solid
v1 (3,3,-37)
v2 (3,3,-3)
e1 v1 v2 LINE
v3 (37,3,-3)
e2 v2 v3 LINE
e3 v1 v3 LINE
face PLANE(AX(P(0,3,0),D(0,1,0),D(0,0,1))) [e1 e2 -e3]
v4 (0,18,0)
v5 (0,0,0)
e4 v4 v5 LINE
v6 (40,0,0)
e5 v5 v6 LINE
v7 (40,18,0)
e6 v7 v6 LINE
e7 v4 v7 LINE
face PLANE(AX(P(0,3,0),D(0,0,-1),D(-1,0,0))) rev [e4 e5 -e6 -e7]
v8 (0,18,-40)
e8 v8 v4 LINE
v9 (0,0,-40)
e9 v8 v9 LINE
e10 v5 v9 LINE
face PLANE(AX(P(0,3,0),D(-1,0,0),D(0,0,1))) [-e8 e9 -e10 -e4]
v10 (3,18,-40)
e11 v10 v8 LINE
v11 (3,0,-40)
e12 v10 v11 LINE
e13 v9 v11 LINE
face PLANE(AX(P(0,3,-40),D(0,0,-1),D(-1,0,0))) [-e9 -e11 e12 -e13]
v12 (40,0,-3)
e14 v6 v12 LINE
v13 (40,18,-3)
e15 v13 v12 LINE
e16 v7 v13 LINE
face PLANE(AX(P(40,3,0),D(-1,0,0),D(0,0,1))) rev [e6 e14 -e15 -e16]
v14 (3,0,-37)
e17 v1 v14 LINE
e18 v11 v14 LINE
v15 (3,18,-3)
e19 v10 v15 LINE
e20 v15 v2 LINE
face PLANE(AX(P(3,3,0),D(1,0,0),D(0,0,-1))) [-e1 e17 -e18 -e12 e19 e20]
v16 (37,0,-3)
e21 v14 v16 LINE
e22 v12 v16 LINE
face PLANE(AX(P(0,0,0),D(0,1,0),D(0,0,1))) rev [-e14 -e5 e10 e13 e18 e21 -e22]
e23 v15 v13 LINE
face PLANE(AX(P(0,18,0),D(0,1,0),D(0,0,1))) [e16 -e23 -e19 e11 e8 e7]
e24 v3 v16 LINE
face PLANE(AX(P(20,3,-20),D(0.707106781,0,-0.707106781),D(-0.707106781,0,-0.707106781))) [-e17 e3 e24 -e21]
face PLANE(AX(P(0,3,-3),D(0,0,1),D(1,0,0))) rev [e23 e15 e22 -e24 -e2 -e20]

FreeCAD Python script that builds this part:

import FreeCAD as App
import Part
import Sketcher
Q = App.Units.Quantity

doc = App.newDocument("Part")
body = doc.addObject("PartDesign::Body", "Body")

sketch1 = body.newObject("Sketcher::SketchObject", "Sketch")
sketch1.AttachmentSupport = (doc.getObject("XZ_Plane"), [""])
sketch1.MapMode = "FlatFace"
sketch1.addGeometry(Part.LineSegment(App.Vector(3, -40, 0), App.Vector(0, -40, 0)), False)
sketch1.addGeometry(Part.LineSegment(App.Vector(0, -40, 0), App.Vector(0, 0, 0)), False)
sketch1.addGeometry(Part.LineSegment(App.Vector(0, 0, 0), App.Vector(40, 0, 0)), False)
sketch1.addGeometry(Part.LineSegment(App.Vector(40, 0, 0), App.Vector(40, -3, 0)), False)
sketch1.addGeometry(Part.LineSegment(App.Vector(40, -3, 0), App.Vector(37, -3, 0)), False)
sketch1.addGeometry(Part.LineSegment(App.Vector(37, -3, 0), App.Vector(3, -37, 0)), False)
sketch1.addGeometry(Part.LineSegment(App.Vector(3, -37, 0), App.Vector(3, -40, 0)), False)
sketch1.addConstraint(Sketcher.Constraint("Coincident", 0, 2, 1, 1))
sketch1.addConstraint(Sketcher.Constraint("Coincident", 1, 2, 2, 1))
sketch1.addConstraint(Sketcher.Constraint("Coincident", 2, 2, 3, 1))
sketch1.addConstraint(Sketcher.Constraint("Coincident", 3, 2, 4, 1))
sketch1.addConstraint(Sketcher.Constraint("Coincident", 4, 2, 5, 1))
sketch1.addConstraint(Sketcher.Constraint("Coincident", 5, 2, 6, 1))
sketch1.addConstraint(Sketcher.Constraint("Coincident", 6, 2, 0, 1))
sketch1.addConstraint(Sketcher.Constraint("Horizontal", 0))
sketch1.addConstraint(Sketcher.Constraint("Vertical", 1))
sketch1.addConstraint(Sketcher.Constraint("Horizontal", 2))
sketch1.addConstraint(Sketcher.Constraint("Vertical", 3))
sketch1.addConstraint(Sketcher.Constraint("Horizontal", 4))
sketch1.addConstraint(Sketcher.Constraint("Vertical", 6))
sketch1.addConstraint(Sketcher.Constraint("Coincident", 1, 2, -1, 1))
sketch1.addConstraint(Sketcher.Constraint("Equal", 0, 4))
sketch1.addConstraint(Sketcher.Constraint("Equal", 2, 1))
sketch1.addConstraint(Sketcher.Constraint("Equal", 4, 3))
sketch1.addConstraint(Sketcher.Constraint("Equal", 3, 6))
sketch1.addConstraint(Sketcher.Constraint("DistanceX", 0, 2, 0, 1, Q("3 mm")))
sketch1.addConstraint(Sketcher.Constraint("DistanceX", 2, 1, 2, 2, Q("40 mm")))
pad1 = body.newObject("PartDesign::Pad", "Pad")
pad1.Profile = sketch1
pad1.Length = 3
pad1.Reversed = True

sketch2 = body.newObject("Sketcher::SketchObject", "Sketch001")
sketch2.AttachmentSupport = (doc.getObject("XZ_Plane"), [""])
sketch2.MapMode = "FlatFace"
sketch2.AttachmentOffset = App.Placement(App.Vector(0, 0, -3), App.Rotation())
sketch2.addGeometry(Part.LineSegment(App.Vector(3, -3, 0), App.Vector(3, -40, 0)), False)
sketch2.addGeometry(Part.LineSegment(App.Vector(3, -40, 0), App.Vector(0, -40, 0)), False)
sketch2.addGeometry(Part.LineSegment(App.Vector(0, -40, 0), App.Vector(0, 0, 0)), False)
sketch2.addGeometry(Part.LineSegment(App.Vector(0, 0, 0), App.Vector(40, 0, 0)), False)
sketch2.addGeometry(Part.LineSegment(App.Vector(40, 0, 0), App.Vector(40, -3, 0)), False)
sketch2.addGeometry(Part.LineSegment(App.Vector(40, -3, 0), App.Vector(3, -3, 0)), False)
sketch2.addConstraint(Sketcher.Constraint("Coincident", 0, 2, 1, 1))
sketch2.addConstraint(Sketcher.Constraint("Coincident", 1, 2, 2, 1))
sketch2.addConstraint(Sketcher.Constraint("Coincident", 2, 2, 3, 1))
sketch2.addConstraint(Sketcher.Constraint("Coincident", 3, 2, 4, 1))
sketch2.addConstraint(Sketcher.Constraint("Coincident", 4, 2, 5, 1))
sketch2.addConstraint(Sketcher.Constraint("Coincident", 5, 2, 0, 1))
sketch2.addConstraint(Sketcher.Constraint("Vertical", 0))
sketch2.addConstraint(Sketcher.Constraint("Horizontal", 1))
sketch2.addConstraint(Sketcher.Constraint("Vertical", 2))
sketch2.addConstraint(Sketcher.Constraint("Horizontal", 3))
sketch2.addConstraint(Sketcher.Constraint("Vertical", 4))
sketch2.addConstraint(Sketcher.Constraint("Horizontal", 5))
sketch2.addConstraint(Sketcher.Constraint("Coincident", 2, 2, -1, 1))
sketch2.addConstraint(Sketcher.Constraint("Equal", 5, 0))
sketch2.addConstraint(Sketcher.Constraint("Equal", 3, 2))
sketch2.addConstraint(Sketcher.Constraint("DistanceX", 1, 2, 1, 1, Q("3 mm")))
sketch2.addConstraint(Sketcher.Constraint("DistanceX", 3, 1, 3, 2, Q("40 mm")))
pad2 = body.newObject("PartDesign::Pad", "Pad001")
pad2.Profile = sketch2
pad2.Length = 15
pad2.Reversed = True

doc.recompute()
